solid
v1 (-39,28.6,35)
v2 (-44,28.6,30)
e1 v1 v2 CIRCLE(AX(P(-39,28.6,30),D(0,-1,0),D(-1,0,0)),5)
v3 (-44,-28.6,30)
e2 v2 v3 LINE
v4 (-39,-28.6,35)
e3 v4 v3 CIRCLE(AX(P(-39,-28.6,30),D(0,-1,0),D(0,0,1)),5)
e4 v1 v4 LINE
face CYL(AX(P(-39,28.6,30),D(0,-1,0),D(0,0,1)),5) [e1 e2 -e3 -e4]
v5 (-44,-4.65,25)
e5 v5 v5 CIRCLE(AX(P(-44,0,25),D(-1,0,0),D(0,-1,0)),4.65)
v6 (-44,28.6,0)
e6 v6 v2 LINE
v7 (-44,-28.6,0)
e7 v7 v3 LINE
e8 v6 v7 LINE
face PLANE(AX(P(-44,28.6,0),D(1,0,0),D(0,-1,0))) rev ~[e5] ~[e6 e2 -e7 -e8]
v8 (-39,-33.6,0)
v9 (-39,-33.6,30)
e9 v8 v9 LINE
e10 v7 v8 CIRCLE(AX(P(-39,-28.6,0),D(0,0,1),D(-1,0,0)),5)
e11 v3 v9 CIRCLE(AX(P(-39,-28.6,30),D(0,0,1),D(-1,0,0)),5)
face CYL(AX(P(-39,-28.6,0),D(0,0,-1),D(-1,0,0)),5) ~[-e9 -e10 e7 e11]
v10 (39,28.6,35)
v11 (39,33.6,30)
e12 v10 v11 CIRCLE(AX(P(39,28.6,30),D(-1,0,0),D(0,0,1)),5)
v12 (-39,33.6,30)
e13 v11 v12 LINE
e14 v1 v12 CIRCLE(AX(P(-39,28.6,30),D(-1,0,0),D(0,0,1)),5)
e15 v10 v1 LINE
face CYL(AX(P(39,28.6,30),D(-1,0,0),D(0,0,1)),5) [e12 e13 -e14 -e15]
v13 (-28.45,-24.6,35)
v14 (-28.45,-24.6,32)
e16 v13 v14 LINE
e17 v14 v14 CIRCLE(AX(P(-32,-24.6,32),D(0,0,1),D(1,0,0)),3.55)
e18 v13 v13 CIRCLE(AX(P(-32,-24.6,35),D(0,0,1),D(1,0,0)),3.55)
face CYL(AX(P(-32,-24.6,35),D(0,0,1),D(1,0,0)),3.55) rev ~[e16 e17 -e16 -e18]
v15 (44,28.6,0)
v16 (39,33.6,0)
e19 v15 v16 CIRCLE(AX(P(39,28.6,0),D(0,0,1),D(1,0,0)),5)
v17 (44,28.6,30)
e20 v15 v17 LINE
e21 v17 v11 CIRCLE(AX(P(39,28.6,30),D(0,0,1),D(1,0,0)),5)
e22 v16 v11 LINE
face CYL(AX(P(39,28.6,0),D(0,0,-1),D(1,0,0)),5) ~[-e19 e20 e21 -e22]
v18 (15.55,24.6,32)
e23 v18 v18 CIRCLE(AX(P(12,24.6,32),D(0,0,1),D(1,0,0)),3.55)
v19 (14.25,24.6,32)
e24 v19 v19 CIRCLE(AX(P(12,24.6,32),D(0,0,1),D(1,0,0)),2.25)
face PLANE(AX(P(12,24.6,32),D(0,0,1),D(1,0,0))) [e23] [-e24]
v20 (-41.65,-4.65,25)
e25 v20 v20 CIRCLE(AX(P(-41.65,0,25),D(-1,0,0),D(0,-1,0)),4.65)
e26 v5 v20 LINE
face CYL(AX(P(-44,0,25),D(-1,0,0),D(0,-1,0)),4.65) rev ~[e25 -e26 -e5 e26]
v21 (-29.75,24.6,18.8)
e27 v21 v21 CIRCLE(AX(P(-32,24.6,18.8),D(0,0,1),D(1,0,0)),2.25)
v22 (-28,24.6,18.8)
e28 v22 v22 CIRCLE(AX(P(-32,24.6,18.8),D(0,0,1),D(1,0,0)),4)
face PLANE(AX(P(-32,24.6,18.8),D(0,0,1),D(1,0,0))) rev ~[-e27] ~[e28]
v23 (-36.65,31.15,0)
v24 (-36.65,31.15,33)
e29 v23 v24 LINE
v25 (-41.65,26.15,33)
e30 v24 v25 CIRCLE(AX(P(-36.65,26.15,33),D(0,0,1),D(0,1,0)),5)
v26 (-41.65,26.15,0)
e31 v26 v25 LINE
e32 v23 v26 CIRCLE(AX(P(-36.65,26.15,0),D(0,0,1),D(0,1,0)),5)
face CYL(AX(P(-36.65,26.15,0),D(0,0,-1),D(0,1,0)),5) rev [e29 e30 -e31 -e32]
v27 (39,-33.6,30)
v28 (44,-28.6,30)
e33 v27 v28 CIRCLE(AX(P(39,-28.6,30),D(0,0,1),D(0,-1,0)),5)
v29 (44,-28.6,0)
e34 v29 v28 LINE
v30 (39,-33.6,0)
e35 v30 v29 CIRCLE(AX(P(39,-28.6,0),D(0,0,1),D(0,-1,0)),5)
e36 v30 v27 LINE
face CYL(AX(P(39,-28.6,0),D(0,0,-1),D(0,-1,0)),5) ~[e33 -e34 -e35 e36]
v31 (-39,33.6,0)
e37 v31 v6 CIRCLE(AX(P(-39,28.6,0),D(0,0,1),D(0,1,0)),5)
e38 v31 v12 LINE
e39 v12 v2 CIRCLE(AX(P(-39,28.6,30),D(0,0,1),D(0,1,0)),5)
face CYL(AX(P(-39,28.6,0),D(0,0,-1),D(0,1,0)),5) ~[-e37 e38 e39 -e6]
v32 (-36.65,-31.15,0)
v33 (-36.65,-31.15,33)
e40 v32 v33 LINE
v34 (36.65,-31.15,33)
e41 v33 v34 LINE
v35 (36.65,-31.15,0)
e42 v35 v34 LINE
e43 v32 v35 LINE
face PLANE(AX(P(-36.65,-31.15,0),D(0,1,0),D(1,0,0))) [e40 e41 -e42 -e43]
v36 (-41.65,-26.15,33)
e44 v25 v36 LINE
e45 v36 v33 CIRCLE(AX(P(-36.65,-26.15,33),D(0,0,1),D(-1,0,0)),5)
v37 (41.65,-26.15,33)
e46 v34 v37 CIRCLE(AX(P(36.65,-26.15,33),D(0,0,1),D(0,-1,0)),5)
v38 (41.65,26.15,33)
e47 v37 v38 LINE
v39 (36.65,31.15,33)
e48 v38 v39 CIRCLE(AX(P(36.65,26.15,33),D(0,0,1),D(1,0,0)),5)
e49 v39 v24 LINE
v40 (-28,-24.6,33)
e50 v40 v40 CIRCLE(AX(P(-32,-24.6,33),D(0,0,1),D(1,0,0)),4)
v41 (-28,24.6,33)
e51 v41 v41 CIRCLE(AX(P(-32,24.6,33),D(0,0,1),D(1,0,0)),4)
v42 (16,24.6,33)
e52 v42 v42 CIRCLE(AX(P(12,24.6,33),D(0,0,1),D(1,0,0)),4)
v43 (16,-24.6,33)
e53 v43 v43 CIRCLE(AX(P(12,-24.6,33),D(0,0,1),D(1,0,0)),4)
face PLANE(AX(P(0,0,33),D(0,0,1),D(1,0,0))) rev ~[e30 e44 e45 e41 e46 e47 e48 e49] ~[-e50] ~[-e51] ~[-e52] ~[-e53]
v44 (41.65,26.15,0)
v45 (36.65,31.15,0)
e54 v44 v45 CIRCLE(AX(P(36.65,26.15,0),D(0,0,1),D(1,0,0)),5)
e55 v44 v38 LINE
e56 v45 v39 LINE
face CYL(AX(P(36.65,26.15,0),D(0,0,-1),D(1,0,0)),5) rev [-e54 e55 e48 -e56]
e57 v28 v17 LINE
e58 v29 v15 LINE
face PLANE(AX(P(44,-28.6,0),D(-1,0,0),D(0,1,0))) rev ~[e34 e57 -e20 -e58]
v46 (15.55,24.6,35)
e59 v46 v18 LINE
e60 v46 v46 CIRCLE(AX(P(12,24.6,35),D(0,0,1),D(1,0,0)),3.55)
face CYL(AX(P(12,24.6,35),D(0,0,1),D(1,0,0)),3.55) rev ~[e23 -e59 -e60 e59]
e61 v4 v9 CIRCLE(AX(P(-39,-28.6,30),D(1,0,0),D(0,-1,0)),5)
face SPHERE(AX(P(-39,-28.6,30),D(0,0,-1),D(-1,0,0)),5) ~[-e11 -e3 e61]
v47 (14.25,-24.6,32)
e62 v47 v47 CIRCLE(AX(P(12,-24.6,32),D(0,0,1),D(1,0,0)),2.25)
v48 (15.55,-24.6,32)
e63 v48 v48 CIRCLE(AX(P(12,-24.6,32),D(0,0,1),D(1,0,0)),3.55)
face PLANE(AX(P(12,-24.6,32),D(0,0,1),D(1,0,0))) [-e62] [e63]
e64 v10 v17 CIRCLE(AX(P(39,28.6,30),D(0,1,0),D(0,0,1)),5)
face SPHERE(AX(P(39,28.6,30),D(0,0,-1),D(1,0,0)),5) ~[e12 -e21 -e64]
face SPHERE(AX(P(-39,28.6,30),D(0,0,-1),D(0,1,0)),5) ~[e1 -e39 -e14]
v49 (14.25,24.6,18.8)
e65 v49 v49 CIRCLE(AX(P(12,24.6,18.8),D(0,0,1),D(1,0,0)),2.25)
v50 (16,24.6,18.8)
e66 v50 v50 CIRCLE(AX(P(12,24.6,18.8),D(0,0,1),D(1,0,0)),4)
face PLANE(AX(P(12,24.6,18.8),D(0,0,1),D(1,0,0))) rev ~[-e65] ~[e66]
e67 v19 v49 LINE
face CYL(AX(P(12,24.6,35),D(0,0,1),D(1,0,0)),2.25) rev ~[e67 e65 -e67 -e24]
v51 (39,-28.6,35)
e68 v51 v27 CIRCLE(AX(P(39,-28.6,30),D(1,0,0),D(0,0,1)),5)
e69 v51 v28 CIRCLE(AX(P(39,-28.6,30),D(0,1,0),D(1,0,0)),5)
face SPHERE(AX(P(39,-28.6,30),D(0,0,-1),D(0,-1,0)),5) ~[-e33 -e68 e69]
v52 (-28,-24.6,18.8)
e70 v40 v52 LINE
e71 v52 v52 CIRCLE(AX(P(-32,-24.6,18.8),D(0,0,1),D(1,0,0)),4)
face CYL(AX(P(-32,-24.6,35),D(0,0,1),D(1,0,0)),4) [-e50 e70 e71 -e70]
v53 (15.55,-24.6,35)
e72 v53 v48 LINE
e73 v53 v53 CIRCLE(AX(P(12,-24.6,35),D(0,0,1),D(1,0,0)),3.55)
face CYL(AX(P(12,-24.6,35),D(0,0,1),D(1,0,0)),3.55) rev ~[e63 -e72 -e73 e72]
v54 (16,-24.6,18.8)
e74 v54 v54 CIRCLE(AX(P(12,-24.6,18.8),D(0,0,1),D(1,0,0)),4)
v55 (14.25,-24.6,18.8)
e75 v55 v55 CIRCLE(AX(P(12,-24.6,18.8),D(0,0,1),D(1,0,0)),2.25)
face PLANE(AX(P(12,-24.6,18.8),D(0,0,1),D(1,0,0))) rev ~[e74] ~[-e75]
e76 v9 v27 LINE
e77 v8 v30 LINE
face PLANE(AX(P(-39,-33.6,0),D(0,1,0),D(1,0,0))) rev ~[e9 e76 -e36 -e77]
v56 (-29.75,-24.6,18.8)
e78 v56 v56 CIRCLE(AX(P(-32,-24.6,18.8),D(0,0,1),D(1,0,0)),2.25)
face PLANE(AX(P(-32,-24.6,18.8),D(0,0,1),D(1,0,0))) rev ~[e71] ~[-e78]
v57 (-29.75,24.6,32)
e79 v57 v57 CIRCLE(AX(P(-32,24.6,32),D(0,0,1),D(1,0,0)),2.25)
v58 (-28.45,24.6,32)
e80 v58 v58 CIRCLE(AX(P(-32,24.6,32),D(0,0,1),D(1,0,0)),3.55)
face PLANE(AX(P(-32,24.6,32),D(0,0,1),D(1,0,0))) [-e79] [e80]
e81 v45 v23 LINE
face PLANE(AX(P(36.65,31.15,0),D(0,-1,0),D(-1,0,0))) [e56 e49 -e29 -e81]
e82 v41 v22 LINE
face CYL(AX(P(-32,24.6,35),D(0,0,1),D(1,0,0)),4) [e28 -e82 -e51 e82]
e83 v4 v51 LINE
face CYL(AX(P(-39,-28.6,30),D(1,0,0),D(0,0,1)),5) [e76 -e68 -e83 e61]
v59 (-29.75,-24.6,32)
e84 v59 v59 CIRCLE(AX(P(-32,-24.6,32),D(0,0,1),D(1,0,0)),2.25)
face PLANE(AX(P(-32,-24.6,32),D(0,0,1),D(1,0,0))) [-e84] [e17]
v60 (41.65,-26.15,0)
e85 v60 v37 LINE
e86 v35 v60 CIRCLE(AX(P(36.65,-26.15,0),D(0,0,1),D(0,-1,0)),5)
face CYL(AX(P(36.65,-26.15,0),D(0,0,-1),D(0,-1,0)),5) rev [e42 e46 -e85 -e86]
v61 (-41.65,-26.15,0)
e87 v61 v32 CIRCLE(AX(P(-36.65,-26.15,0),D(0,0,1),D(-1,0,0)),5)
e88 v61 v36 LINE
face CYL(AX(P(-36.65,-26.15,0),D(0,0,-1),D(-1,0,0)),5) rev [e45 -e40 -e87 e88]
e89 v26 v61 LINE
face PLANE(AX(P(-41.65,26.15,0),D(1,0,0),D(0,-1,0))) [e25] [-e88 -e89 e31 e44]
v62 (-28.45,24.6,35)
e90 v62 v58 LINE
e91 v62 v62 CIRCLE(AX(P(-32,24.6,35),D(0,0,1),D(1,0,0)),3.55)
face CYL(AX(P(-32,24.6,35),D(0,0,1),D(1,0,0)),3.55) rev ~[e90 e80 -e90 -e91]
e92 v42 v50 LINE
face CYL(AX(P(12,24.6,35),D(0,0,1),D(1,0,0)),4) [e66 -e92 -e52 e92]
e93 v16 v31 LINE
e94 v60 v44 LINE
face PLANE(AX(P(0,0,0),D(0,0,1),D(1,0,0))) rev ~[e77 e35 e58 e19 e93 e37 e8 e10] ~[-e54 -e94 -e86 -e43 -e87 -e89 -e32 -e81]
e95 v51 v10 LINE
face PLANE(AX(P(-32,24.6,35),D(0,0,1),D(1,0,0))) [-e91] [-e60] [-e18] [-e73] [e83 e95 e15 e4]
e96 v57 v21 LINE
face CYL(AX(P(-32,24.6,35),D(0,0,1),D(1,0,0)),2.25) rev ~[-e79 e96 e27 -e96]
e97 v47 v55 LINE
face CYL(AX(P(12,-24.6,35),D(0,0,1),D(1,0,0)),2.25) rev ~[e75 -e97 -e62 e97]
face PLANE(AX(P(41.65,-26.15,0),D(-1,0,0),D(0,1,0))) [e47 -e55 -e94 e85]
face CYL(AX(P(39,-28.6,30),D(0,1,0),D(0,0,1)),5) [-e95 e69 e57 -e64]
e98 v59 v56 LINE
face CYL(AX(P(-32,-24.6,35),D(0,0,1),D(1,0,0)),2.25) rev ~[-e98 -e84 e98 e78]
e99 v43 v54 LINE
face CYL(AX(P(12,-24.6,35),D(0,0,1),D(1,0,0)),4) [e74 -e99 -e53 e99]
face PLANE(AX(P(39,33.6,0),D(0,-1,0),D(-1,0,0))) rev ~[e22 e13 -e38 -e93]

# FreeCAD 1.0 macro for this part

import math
import FreeCAD as App
import Part
import Sketcher
Q = App.Units.Quantity


def edges_at(feature, points):
    """Names of the edges that pass closest to the given points."""
    edges = feature.Shape.Edges
    near = lambda p: min(range(len(edges)), key=lambda i: edges[i].distToShape(Part.Vertex(*p))[0])
    return sorted({f"Edge{near(p) + 1}" for p in points})

doc = App.newDocument("Part")
body = doc.addObject("PartDesign::Body", "Body")

# Sketch on XY plane
sketch1 = body.newObject("Sketcher::SketchObject", "Sketch")
sketch1.AttachmentSupport = (doc.getObject("XY_Plane"), [""])
sketch1.MapMode = "FlatFace"
sketch1.addGeometry(Part.LineSegment(App.Vector(39, 33.6, 0), App.Vector(-39, 33.6, 0)), False)
sketch1.addGeometry(Part.ArcOfCircle(Part.Circle(App.Vector(-39, 28.6, 0), App.Vector(0, 0, 1), 5), math.radians(90), math.radians(180)), False)
sketch1.addGeometry(Part.LineSegment(App.Vector(-44, 28.6, 0), App.Vector(-44, -28.6, 0)), False)
sketch1.addGeometry(Part.ArcOfCircle(Part.Circle(App.Vector(-39, -28.6, 0), App.Vector(0, 0, 1), 5), math.radians(180), math.radians(270)), False)
sketch1.addGeometry(Part.LineSegment(App.Vector(-39, -33.6, 0), App.Vector(39, -33.6, 0)), False)
sketch1.addGeometry(Part.ArcOfCircle(Part.Circle(App.Vector(39, -28.6, 0), App.Vector(0, 0, 1), 5), math.radians(-90), math.radians(0)), False)
sketch1.addGeometry(Part.LineSegment(App.Vector(44, -28.6, 0), App.Vector(44, 28.6, 0)), False)
sketch1.addGeometry(Part.ArcOfCircle(Part.Circle(App.Vector(39, 28.6, 0), App.Vector(0, 0, 1), 5), math.radians(0), math.radians(90)), False)
sketch1.addConstraint(Sketcher.Constraint("Tangent", 0, 2, 1, 1))
sketch1.addConstraint(Sketcher.Constraint("Tangent", 1, 2, 2, 1))
sketch1.addConstraint(Sketcher.Constraint("Tangent", 2, 2, 3, 1))
sketch1.addConstraint(Sketcher.Constraint("Tangent", 3, 2, 4, 1))
sketch1.addConstraint(Sketcher.Constraint("Tangent", 4, 2, 5, 1))
sketch1.addConstraint(Sketcher.Constraint("Tangent", 5, 2, 6, 1))
sketch1.addConstraint(Sketcher.Constraint("Tangent", 6, 2, 7, 1))
sketch1.addConstraint(Sketcher.Constraint("Tangent", 7, 2, 0, 1))
sketch1.addConstraint(Sketcher.Constraint("Horizontal", 0))
sketch1.addConstraint(Sketcher.Constraint("Vertical", 2))
sketch1.addConstraint(Sketcher.Constraint("Horizontal", 4))
sketch1.addConstraint(Sketcher.Constraint("Vertical", 6))
sketch1.addConstraint(Sketcher.Constraint("Equal", 1, 3))
sketch1.addConstraint(Sketcher.Constraint("Equal", 3, 5))
sketch1.addConstraint(Sketcher.Constraint("Equal", 5, 7))
sketch1.addConstraint(Sketcher.Constraint("Symmetric", 1, 3, 5, 3, -1, 1))
sketch1.addConstraint(Sketcher.Constraint("Radius", 1, Q("5 mm")))
sketch1.addConstraint(Sketcher.Constraint("DistanceX", 0, 2, 0, 1, Q("78 mm")))
sketch1.addConstraint(Sketcher.Constraint("DistanceY", 2, 2, 2, 1, Q("57.2 mm")))
pad1 = body.newObject("PartDesign::Pad", "Pad")
pad1.Profile = sketch1
pad1.Length = 35

# Sketch on XY plane
sketch2 = body.newObject("Sketcher::SketchObject", "Sketch001")
sketch2.AttachmentSupport = (doc.getObject("XY_Plane"), [""])
sketch2.MapMode = "FlatFace"
sketch2.addGeometry(Part.ArcOfCircle(Part.Circle(App.Vector(36.65, 26.15, 0), App.Vector(0, 0, 1), 5), math.radians(0), math.radians(90)), False)
sketch2.addGeometry(Part.LineSegment(App.Vector(36.65, 31.15, 0), App.Vector(-36.65, 31.15, 0)), False)
sketch2.addGeometry(Part.ArcOfCircle(Part.Circle(App.Vector(-36.65, 26.15, 0), App.Vector(0, 0, 1), 5), math.radians(90), math.radians(180)), False)
sketch2.addGeometry(Part.LineSegment(App.Vector(-41.65, 26.15, 0), App.Vector(-41.65, -26.15, 0)), False)
sketch2.addGeometry(Part.ArcOfCircle(Part.Circle(App.Vector(-36.65, -26.15, 0), App.Vector(0, 0, 1), 5), math.radians(180), math.radians(270)), False)
sketch2.addGeometry(Part.LineSegment(App.Vector(-36.65, -31.15, 0), App.Vector(36.65, -31.15, 0)), False)
sketch2.addGeometry(Part.ArcOfCircle(Part.Circle(App.Vector(36.65, -26.15, 0), App.Vector(0, 0, 1), 5), math.radians(-90), math.radians(0)), False)
sketch2.addGeometry(Part.LineSegment(App.Vector(41.65, -26.15, 0), App.Vector(41.65, 26.15, 0)), False)
sketch2.addConstraint(Sketcher.Constraint("Tangent", 0, 2, 1, 1))
sketch2.addConstraint(Sketcher.Constraint("Tangent", 1, 2, 2, 1))
sketch2.addConstraint(Sketcher.Constraint("Tangent", 2, 2, 3, 1))
sketch2.addConstraint(Sketcher.Constraint("Tangent", 3, 2, 4, 1))
sketch2.addConstraint(Sketcher.Constraint("Tangent", 4, 2, 5, 1))
sketch2.addConstraint(Sketcher.Constraint("Tangent", 5, 2, 6, 1))
sketch2.addConstraint(Sketcher.Constraint("Tangent", 6, 2, 7, 1))
sketch2.addConstraint(Sketcher.Constraint("Tangent", 7, 2, 0, 1))
sketch2.addConstraint(Sketcher.Constraint("Horizontal", 1))
sketch2.addConstraint(Sketcher.Constraint("Vertical", 3))
sketch2.addConstraint(Sketcher.Constraint("Horizontal", 5))
sketch2.addConstraint(Sketcher.Constraint("Vertical", 7))
sketch2.addConstraint(Sketcher.Constraint("Equal", 0, 2))
sketch2.addConstraint(Sketcher.Constraint("Equal", 2, 4))
sketch2.addConstraint(Sketcher.Constraint("Equal", 4, 6))
sketch2.addConstraint(Sketcher.Constraint("Symmetric", 0, 3, 4, 3, -1, 1))
sketch2.addConstraint(Sketcher.Constraint("Radius", 0, Q("5 mm")))
sketch2.addConstraint(Sketcher.Constraint("DistanceX", 1, 2, 1, 1, Q("73.3 mm")))
sketch2.addConstraint(Sketcher.Constraint("DistanceY", 3, 2, 3, 1, Q("52.3 mm")))
pocket1 = body.newObject("PartDesign::Pocket", "Pocket")
pocket1.Profile = sketch2
pocket1.Length = 33
pocket1.Reversed = True

# Sketch on XY plane
sketch3 = body.newObject("Sketcher::SketchObject", "Sketch002")
sketch3.AttachmentSupport = (doc.getObject("XY_Plane"), [""])
sketch3.MapMode = "FlatFace"
sketch3.AttachmentOffset = App.Placement(App.Vector(0, 0, 35), App.Rotation())
sketch3.addGeometry(Part.Circle(App.Vector(-32, 24.6, 0), App.Vector(0, 0, 1), 4), False)
sketch3.addGeometry(Part.Circle(App.Vector(12, 24.6, 0), App.Vector(0, 0, 1), 4), False)
sketch3.addGeometry(Part.Circle(App.Vector(-32, -24.6, 0), App.Vector(0, 0, 1), 4), False)
sketch3.addGeometry(Part.Circle(App.Vector(12, -24.6, 0), App.Vector(0, 0, 1), 4), False)
sketch3.addConstraint(Sketcher.Constraint("Equal", 0, 1))
sketch3.addConstraint(Sketcher.Constraint("Equal", 1, 2))
sketch3.addConstraint(Sketcher.Constraint("Equal", 2, 3))
sketch3.addConstraint(Sketcher.Constraint("Symmetric", 0, 3, 2, 3, -1))
sketch3.addConstraint(Sketcher.Constraint("Symmetric", 1, 3, 3, 3, -1))
sketch3.addConstraint(Sketcher.Constraint("Horizontal", 0, 3, 1, 3))
sketch3.addConstraint(Sketcher.Constraint("Diameter", 0, Q("8 mm")))
sketch3.addConstraint(Sketcher.Constraint("DistanceX", 0, 3, -1, 1, Q("32 mm")))
sketch3.addConstraint(Sketcher.Constraint("DistanceX", -1, 1, 1, 3, Q("12 mm")))
sketch3.addConstraint(Sketcher.Constraint("DistanceY", -1, 1, 0, 3, Q("24.6 mm")))
pad2 = body.newObject("PartDesign::Pad", "Pad001")
pad2.Profile = sketch3
pad2.Length = 16.2
pad2.Reversed = True

# Sketch on XY plane
sketch4 = body.newObject("Sketcher::SketchObject", "Sketch003")
sketch4.AttachmentSupport = (doc.getObject("XY_Plane"), [""])
sketch4.MapMode = "FlatFace"
sketch4.AttachmentOffset = App.Placement(App.Vector(0, 0, 35), App.Rotation())
sketch4.addGeometry(Part.Circle(App.Vector(-32, 24.6, 0), App.Vector(0, 0, 1), 2.25), False)
sketch4.addGeometry(Part.Circle(App.Vector(-32, -24.6, 0), App.Vector(0, 0, 1), 2.25), False)
sketch4.addGeometry(Part.Circle(App.Vector(12, 24.6, 0), App.Vector(0, 0, 1), 2.25), False)
sketch4.addGeometry(Part.Circle(App.Vector(12, -24.6, 0), App.Vector(0, 0, 1), 2.25), False)
sketch4.addConstraint(Sketcher.Constraint("Equal", 0, 1))
sketch4.addConstraint(Sketcher.Constraint("Equal", 1, 2))
sketch4.addConstraint(Sketcher.Constraint("Equal", 2, 3))
sketch4.addConstraint(Sketcher.Constraint("Symmetric", 0, 3, 1, 3, -1))
sketch4.addConstraint(Sketcher.Constraint("Symmetric", 2, 3, 3, 3, -1))
sketch4.addConstraint(Sketcher.Constraint("Horizontal", 0, 3, 2, 3))
sketch4.addConstraint(Sketcher.Constraint("Diameter", 0, Q("4.5 mm")))
sketch4.addConstraint(Sketcher.Constraint("DistanceX", 0, 3, -1, 1, Q("32 mm")))
sketch4.addConstraint(Sketcher.Constraint("DistanceX", -1, 1, 2, 3, Q("12 mm")))
sketch4.addConstraint(Sketcher.Constraint("DistanceY", -1, 1, 0, 3, Q("24.6 mm")))
pocket2 = body.newObject("PartDesign::Pocket", "Pocket001")
pocket2.Profile = sketch4
pocket2.Length = 25

# Sketch on XY plane
sketch5 = body.newObject("Sketcher::SketchObject", "Sketch004")
sketch5.AttachmentSupport = (doc.getObject("XY_Plane"), [""])
sketch5.MapMode = "FlatFace"
sketch5.AttachmentOffset = App.Placement(App.Vector(0, 0, 35), App.Rotation())
sketch5.addGeometry(Part.Circle(App.Vector(-32, 24.6, 0), App.Vector(0, 0, 1), 3.55), False)
sketch5.addGeometry(Part.Circle(App.Vector(12, 24.6, 0), App.Vector(0, 0, 1), 3.55), False)
sketch5.addGeometry(Part.Circle(App.Vector(12, -24.6, 0), App.Vector(0, 0, 1), 3.55), False)
sketch5.addGeometry(Part.Circle(App.Vector(-32, -24.6, 0), App.Vector(0, 0, 1), 3.55), False)
sketch5.addConstraint(Sketcher.Constraint("Equal", 0, 1))
sketch5.addConstraint(Sketcher.Constraint("Equal", 1, 2))
sketch5.addConstraint(Sketcher.Constraint("Equal", 2, 3))
sketch5.addConstraint(Sketcher.Constraint("Symmetric", 1, 3, 2, 3, -1))
sketch5.addConstraint(Sketcher.Constraint("Symmetric", 0, 3, 3, 3, -1))
sketch5.addConstraint(Sketcher.Constraint("Horizontal", 0, 3, 1, 3))
sketch5.addConstraint(Sketcher.Constraint("Diameter", 0, Q("7.1 mm")))
sketch5.addConstraint(Sketcher.Constraint("DistanceX", 0, 3, -1, 1, Q("32 mm")))
sketch5.addConstraint(Sketcher.Constraint("DistanceX", -1, 1, 1, 3, Q("12 mm")))
sketch5.addConstraint(Sketcher.Constraint("DistanceY", -1, 1, 0, 3, Q("24.6 mm")))
pocket3 = body.newObject("PartDesign::Pocket", "Pocket002")
pocket3.Profile = sketch5
pocket3.Length = 3

# Sketch on YZ plane
sketch6 = body.newObject("Sketcher::SketchObject", "Sketch005")
sketch6.AttachmentSupport = (doc.getObject("YZ_Plane"), [""])
sketch6.MapMode = "FlatFace"
sketch6.AttachmentOffset = App.Placement(App.Vector(0, 0, -44), App.Rotation())
sketch6.addGeometry(Part.Circle(App.Vector(0, 25, 0), App.Vector(0, 0, 1), 4.65), False)
sketch6.addConstraint(Sketcher.Constraint("PointOnObject", 0, 3, -2))
sketch6.addConstraint(Sketcher.Constraint("Diameter", 0, Q("9.3 mm")))
sketch6.addConstraint(Sketcher.Constraint("DistanceY", -1, 1, 0, 3, Q("25 mm")))
pocket4 = body.newObject("PartDesign::Pocket", "Pocket003")
pocket4.Profile = sketch6
pocket4.Length = 5
pocket4.Reversed = True
doc.recompute()

fillet = body.newObject("PartDesign::Fillet", "Fillet")
fillet.Base = (pocket4, edges_at(pocket4, [(0, 33.6, 35)]))
fillet.Radius = 5

doc.recompute()
